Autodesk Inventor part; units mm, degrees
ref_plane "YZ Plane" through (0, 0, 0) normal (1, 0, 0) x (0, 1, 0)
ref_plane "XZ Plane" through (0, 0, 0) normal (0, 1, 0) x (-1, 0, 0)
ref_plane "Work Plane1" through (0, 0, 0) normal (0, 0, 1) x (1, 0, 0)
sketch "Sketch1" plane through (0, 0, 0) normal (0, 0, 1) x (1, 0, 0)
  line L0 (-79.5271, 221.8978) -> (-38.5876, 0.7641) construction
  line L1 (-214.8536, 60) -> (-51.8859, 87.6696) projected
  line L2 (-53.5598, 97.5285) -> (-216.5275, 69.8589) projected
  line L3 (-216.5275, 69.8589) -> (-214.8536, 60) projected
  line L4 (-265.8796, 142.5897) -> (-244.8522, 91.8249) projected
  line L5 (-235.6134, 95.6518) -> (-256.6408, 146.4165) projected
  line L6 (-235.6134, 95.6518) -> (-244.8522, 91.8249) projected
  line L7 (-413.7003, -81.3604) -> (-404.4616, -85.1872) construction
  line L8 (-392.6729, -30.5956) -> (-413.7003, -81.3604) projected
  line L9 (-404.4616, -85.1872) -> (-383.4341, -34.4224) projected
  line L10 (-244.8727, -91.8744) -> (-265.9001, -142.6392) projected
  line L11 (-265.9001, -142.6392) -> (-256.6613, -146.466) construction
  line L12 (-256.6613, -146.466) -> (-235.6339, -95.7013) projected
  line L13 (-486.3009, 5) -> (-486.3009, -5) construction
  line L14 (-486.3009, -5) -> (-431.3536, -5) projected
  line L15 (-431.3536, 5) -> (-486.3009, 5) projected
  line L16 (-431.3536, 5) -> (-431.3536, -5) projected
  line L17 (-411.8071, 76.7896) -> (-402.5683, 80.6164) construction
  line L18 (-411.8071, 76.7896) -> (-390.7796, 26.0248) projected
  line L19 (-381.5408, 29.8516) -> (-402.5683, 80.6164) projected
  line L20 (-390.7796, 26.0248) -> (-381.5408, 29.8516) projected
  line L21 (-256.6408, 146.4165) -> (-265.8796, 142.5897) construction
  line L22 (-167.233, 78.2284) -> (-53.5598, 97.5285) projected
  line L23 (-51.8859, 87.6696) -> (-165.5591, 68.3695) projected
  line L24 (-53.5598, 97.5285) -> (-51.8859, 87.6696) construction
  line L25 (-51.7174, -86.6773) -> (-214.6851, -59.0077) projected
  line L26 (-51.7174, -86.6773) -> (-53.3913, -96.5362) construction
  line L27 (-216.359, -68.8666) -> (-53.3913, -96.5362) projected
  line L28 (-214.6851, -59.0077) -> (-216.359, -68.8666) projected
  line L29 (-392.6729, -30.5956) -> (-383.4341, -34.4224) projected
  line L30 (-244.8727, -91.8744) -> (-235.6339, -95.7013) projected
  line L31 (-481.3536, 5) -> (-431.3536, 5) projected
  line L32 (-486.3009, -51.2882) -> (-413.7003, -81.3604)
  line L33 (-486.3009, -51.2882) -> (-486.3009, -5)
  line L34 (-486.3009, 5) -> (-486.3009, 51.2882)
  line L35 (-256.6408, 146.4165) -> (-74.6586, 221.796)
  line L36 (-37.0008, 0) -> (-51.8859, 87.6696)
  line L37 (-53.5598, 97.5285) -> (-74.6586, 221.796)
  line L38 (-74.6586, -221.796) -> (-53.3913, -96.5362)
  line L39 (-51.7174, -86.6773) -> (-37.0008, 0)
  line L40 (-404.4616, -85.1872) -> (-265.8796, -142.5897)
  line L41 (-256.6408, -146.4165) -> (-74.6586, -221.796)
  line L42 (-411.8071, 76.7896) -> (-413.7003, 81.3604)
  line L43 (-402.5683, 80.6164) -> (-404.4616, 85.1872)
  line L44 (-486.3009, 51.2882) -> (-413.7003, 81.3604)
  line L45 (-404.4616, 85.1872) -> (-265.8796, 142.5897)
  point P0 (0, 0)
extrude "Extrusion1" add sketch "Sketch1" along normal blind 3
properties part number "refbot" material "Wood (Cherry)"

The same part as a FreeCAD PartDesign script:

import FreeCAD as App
import Part
import Sketcher

V = App.Vector
Q = App.Units.Quantity


def add_polygon(sketch, points):
    """Adds a closed chain of lines whose ends are joined by coincident constraints."""
    first, n = sketch.GeometryCount, len(points)
    for a, b in zip(points, points[1:] + points[:1]):
        sketch.addGeometry(Part.LineSegment(App.Vector(*a, 0), App.Vector(*b, 0)), False)
    for i in range(n):
        sketch.addConstraint(Sketcher.Constraint("Coincident", first + i, 2, first + (i + 1) % n, 1))

doc = App.newDocument("Part")
body = doc.addObject("PartDesign::Body", "Body")

sketch1 = body.newObject("Sketcher::SketchObject", "Sketch")
sketch1.AttachmentSupport = (doc.getObject("XY_Plane"), [""])
sketch1.MapMode = "FlatFace"
add_polygon(sketch1, [(-51.8859, 87.6696), (-214.8536, 60), (-216.5275, 69.8589), (-53.5598, 97.5285), (-74.6586, 221.796), (-256.6408, 146.4165), (-235.6134, 95.6518), (-244.8522, 91.8249), (-265.8796, 142.5897), (-404.4616, 85.1872), (-402.5683, 80.6164), (-381.5408, 29.8516), (-390.7796, 26.0248), (-411.8071, 76.7896), (-413.7003, 81.3604), (-486.3009, 51.2882), (-486.3009, 5), (-431.3536, 5), (-431.3536, -5), (-486.3009, -5), (-486.3009, -51.2882), (-413.7003, -81.3604), (-392.6729, -30.5956), (-383.4341, -34.4224), (-404.4616, -85.1872), (-265.879597, -142.589701), (-244.8727, -91.8744), (-235.6339, -95.7013), (-256.6408, -146.4165), (-74.6586, -221.796), (-53.3913, -96.5362), (-216.359, -68.8666), (-214.6851, -59.0077), (-51.7174, -86.6773), (-37.0008, 0)])
sketch1.addConstraint(Sketcher.Constraint("Vertical", 15))
sketch1.addConstraint(Sketcher.Constraint("Horizontal", 16))
sketch1.addConstraint(Sketcher.Constraint("Vertical", 17))
sketch1.addConstraint(Sketcher.Constraint("Horizontal", 18))
sketch1.addConstraint(Sketcher.Constraint("Vertical", 19))
sketch1.addConstraint(Sketcher.Constraint("Symmetric", 15, 2, 18, 2, -1))
sketch1.addConstraint(Sketcher.Constraint("Symmetric", 13, 2, 20, 2, -1))
sketch1.addConstraint(Sketcher.Constraint("Symmetric", 8, 2, 23, 2, -1))
sketch1.addConstraint(Sketcher.Constraint("Symmetric", 7, 2, 24, 2, -1))
sketch1.addConstraint(Sketcher.Constraint("Symmetric", 4, 2, 27, 2, -1))
sketch1.addConstraint(Sketcher.Constraint("Symmetric", 3, 2, 28, 2, -1))
sketch1.addConstraint(Sketcher.Constraint("PointOnObject", 33, 2, -1))
sketch1.addConstraint(Sketcher.Constraint("Perpendicular", 0, 1))
sketch1.addConstraint(Sketcher.Constraint("Perpendicular", 1, 2))
sketch1.addConstraint(Sketcher.Constraint("Perpendicular", 2, 3))
sketch1.addConstraint(Sketcher.Constraint("Perpendicular", 4, 5))
sketch1.addConstraint(Sketcher.Constraint("Perpendicular", 5, 6))
sketch1.addConstraint(Sketcher.Constraint("Perpendicular", 6, 7))
sketch1.addConstraint(Sketcher.Constraint("Perpendicular", 7, 8))
sketch1.addConstraint(Sketcher.Constraint("Perpendicular", 8, 9))
sketch1.addConstraint(Sketcher.Constraint("Parallel", 9, 10))
sketch1.addConstraint(Sketcher.Constraint("Perpendicular", 10, 11))
sketch1.addConstraint(Sketcher.Constraint("Perpendicular", 11, 12))
sketch1.addConstraint(Sketcher.Constraint("Parallel", 12, 13))
sketch1.addConstraint(Sketcher.Constraint("Perpendicular", 13, 14))
sketch1.addConstraint(Sketcher.Constraint("Perpendicular", 20, 21))
sketch1.addConstraint(Sketcher.Constraint("Perpendicular", 21, 22))
sketch1.addConstraint(Sketcher.Constraint("Perpendicular", 22, 23))
sketch1.addConstraint(Sketcher.Constraint("Perpendicular", 23, 24))
sketch1.addConstraint(Sketcher.Constraint("Perpendicular", 24, 25))
sketch1.addConstraint(Sketcher.Constraint("Perpendicular", 25, 26))
sketch1.addConstraint(Sketcher.Constraint("Perpendicular", 26, 27))
sketch1.addConstraint(Sketcher.Constraint("Perpendicular", 29, 30))
sketch1.addConstraint(Sketcher.Constraint("Perpendicular", 30, 31))
sketch1.addConstraint(Sketcher.Constraint("Perpendicular", 31, 32))
sketch1.addConstraint(Sketcher.Constraint("Perpendicular", 32, 33))
sketch1.addConstraint(Sketcher.Constraint("Parallel", 3, 34))
sketch1.addConstraint(Sketcher.Constraint("Equal", 0, 2))
sketch1.addConstraint(Sketcher.Constraint("Equal", 1, 6))
sketch1.addConstraint(Sketcher.Constraint("Equal", 5, 7))
sketch1.addConstraint(Sketcher.Constraint("Equal", 7, 10))
sketch1.addConstraint(Sketcher.Constraint("Equal", 6, 11))
sketch1.addConstraint(Sketcher.Constraint("Equal", 10, 12))
sketch1.addConstraint(Sketcher.Constraint("Equal", 9, 13))
sketch1.addConstraint(Sketcher.Constraint("Equal", 12, 21))
sketch1.addConstraint(Sketcher.Constraint("Equal", 2, 30))
sketch1.addConstraint(Sketcher.Constraint("Equal", 26, 31))
sketch1.addConstraint(Sketcher.Constraint("Equal", 30, 32))
sketch1.addConstraint(Sketcher.Constraint("DistanceY", 17, 2, 17, 1, 10.0))
sketch1.addConstraint(Sketcher.Constraint("Distance", 1, 10.0))
sketch1.addConstraint(Sketcher.Constraint("Distance", 8, 150.0))
sketch1.addConstraint(Sketcher.Constraint("DistanceY", -1, 1, 0, 2, 60.0))
sketch1.addConstraint(Sketcher.Constraint("Angle", 4, Q("-157.5 deg")))
sketch1.addConstraint(Sketcher.Constraint("Distance", 0, 165.3))
sketch1.addConstraint(Sketcher.Constraint("DistanceY", 9, 2, 4, 2, 65.8))
sketch1.addConstraint(Sketcher.Constraint("DistanceX", 15, 2, 10, 2, 104.76))
sketch1.addConstraint(Sketcher.Constraint("DistanceY", 27, 2, 30, 2, 77.55))
sketch1.addConstraint(Sketcher.Constraint("Distance", 3, 126.046))
sketch1.addConstraint(Sketcher.Constraint("Distance", 4, 196.976))
sketch1.addConstraint(Sketcher.Constraint("DistanceX", 16, 1, 16, 2, 54.9473))
sketch1.addConstraint(Sketcher.Constraint("DistanceY", 15, 2, 15, 1, 46.2882))
sketch1.addConstraint(Sketcher.Constraint("DistanceY", -1, 1, 3, 2, 221.796))
sketch1.addConstraint(Sketcher.Constraint("DistanceX", 12, 2, -1, 1, 411.807))
sketch1.addConstraint(Sketcher.Constraint("DistanceX", 26, 2, -1, 1, 235.634))
pad1 = body.newObject("PartDesign::Pad", "Pad")
pad1.Profile = sketch1
pad1.Length = 3

doc.recompute()
